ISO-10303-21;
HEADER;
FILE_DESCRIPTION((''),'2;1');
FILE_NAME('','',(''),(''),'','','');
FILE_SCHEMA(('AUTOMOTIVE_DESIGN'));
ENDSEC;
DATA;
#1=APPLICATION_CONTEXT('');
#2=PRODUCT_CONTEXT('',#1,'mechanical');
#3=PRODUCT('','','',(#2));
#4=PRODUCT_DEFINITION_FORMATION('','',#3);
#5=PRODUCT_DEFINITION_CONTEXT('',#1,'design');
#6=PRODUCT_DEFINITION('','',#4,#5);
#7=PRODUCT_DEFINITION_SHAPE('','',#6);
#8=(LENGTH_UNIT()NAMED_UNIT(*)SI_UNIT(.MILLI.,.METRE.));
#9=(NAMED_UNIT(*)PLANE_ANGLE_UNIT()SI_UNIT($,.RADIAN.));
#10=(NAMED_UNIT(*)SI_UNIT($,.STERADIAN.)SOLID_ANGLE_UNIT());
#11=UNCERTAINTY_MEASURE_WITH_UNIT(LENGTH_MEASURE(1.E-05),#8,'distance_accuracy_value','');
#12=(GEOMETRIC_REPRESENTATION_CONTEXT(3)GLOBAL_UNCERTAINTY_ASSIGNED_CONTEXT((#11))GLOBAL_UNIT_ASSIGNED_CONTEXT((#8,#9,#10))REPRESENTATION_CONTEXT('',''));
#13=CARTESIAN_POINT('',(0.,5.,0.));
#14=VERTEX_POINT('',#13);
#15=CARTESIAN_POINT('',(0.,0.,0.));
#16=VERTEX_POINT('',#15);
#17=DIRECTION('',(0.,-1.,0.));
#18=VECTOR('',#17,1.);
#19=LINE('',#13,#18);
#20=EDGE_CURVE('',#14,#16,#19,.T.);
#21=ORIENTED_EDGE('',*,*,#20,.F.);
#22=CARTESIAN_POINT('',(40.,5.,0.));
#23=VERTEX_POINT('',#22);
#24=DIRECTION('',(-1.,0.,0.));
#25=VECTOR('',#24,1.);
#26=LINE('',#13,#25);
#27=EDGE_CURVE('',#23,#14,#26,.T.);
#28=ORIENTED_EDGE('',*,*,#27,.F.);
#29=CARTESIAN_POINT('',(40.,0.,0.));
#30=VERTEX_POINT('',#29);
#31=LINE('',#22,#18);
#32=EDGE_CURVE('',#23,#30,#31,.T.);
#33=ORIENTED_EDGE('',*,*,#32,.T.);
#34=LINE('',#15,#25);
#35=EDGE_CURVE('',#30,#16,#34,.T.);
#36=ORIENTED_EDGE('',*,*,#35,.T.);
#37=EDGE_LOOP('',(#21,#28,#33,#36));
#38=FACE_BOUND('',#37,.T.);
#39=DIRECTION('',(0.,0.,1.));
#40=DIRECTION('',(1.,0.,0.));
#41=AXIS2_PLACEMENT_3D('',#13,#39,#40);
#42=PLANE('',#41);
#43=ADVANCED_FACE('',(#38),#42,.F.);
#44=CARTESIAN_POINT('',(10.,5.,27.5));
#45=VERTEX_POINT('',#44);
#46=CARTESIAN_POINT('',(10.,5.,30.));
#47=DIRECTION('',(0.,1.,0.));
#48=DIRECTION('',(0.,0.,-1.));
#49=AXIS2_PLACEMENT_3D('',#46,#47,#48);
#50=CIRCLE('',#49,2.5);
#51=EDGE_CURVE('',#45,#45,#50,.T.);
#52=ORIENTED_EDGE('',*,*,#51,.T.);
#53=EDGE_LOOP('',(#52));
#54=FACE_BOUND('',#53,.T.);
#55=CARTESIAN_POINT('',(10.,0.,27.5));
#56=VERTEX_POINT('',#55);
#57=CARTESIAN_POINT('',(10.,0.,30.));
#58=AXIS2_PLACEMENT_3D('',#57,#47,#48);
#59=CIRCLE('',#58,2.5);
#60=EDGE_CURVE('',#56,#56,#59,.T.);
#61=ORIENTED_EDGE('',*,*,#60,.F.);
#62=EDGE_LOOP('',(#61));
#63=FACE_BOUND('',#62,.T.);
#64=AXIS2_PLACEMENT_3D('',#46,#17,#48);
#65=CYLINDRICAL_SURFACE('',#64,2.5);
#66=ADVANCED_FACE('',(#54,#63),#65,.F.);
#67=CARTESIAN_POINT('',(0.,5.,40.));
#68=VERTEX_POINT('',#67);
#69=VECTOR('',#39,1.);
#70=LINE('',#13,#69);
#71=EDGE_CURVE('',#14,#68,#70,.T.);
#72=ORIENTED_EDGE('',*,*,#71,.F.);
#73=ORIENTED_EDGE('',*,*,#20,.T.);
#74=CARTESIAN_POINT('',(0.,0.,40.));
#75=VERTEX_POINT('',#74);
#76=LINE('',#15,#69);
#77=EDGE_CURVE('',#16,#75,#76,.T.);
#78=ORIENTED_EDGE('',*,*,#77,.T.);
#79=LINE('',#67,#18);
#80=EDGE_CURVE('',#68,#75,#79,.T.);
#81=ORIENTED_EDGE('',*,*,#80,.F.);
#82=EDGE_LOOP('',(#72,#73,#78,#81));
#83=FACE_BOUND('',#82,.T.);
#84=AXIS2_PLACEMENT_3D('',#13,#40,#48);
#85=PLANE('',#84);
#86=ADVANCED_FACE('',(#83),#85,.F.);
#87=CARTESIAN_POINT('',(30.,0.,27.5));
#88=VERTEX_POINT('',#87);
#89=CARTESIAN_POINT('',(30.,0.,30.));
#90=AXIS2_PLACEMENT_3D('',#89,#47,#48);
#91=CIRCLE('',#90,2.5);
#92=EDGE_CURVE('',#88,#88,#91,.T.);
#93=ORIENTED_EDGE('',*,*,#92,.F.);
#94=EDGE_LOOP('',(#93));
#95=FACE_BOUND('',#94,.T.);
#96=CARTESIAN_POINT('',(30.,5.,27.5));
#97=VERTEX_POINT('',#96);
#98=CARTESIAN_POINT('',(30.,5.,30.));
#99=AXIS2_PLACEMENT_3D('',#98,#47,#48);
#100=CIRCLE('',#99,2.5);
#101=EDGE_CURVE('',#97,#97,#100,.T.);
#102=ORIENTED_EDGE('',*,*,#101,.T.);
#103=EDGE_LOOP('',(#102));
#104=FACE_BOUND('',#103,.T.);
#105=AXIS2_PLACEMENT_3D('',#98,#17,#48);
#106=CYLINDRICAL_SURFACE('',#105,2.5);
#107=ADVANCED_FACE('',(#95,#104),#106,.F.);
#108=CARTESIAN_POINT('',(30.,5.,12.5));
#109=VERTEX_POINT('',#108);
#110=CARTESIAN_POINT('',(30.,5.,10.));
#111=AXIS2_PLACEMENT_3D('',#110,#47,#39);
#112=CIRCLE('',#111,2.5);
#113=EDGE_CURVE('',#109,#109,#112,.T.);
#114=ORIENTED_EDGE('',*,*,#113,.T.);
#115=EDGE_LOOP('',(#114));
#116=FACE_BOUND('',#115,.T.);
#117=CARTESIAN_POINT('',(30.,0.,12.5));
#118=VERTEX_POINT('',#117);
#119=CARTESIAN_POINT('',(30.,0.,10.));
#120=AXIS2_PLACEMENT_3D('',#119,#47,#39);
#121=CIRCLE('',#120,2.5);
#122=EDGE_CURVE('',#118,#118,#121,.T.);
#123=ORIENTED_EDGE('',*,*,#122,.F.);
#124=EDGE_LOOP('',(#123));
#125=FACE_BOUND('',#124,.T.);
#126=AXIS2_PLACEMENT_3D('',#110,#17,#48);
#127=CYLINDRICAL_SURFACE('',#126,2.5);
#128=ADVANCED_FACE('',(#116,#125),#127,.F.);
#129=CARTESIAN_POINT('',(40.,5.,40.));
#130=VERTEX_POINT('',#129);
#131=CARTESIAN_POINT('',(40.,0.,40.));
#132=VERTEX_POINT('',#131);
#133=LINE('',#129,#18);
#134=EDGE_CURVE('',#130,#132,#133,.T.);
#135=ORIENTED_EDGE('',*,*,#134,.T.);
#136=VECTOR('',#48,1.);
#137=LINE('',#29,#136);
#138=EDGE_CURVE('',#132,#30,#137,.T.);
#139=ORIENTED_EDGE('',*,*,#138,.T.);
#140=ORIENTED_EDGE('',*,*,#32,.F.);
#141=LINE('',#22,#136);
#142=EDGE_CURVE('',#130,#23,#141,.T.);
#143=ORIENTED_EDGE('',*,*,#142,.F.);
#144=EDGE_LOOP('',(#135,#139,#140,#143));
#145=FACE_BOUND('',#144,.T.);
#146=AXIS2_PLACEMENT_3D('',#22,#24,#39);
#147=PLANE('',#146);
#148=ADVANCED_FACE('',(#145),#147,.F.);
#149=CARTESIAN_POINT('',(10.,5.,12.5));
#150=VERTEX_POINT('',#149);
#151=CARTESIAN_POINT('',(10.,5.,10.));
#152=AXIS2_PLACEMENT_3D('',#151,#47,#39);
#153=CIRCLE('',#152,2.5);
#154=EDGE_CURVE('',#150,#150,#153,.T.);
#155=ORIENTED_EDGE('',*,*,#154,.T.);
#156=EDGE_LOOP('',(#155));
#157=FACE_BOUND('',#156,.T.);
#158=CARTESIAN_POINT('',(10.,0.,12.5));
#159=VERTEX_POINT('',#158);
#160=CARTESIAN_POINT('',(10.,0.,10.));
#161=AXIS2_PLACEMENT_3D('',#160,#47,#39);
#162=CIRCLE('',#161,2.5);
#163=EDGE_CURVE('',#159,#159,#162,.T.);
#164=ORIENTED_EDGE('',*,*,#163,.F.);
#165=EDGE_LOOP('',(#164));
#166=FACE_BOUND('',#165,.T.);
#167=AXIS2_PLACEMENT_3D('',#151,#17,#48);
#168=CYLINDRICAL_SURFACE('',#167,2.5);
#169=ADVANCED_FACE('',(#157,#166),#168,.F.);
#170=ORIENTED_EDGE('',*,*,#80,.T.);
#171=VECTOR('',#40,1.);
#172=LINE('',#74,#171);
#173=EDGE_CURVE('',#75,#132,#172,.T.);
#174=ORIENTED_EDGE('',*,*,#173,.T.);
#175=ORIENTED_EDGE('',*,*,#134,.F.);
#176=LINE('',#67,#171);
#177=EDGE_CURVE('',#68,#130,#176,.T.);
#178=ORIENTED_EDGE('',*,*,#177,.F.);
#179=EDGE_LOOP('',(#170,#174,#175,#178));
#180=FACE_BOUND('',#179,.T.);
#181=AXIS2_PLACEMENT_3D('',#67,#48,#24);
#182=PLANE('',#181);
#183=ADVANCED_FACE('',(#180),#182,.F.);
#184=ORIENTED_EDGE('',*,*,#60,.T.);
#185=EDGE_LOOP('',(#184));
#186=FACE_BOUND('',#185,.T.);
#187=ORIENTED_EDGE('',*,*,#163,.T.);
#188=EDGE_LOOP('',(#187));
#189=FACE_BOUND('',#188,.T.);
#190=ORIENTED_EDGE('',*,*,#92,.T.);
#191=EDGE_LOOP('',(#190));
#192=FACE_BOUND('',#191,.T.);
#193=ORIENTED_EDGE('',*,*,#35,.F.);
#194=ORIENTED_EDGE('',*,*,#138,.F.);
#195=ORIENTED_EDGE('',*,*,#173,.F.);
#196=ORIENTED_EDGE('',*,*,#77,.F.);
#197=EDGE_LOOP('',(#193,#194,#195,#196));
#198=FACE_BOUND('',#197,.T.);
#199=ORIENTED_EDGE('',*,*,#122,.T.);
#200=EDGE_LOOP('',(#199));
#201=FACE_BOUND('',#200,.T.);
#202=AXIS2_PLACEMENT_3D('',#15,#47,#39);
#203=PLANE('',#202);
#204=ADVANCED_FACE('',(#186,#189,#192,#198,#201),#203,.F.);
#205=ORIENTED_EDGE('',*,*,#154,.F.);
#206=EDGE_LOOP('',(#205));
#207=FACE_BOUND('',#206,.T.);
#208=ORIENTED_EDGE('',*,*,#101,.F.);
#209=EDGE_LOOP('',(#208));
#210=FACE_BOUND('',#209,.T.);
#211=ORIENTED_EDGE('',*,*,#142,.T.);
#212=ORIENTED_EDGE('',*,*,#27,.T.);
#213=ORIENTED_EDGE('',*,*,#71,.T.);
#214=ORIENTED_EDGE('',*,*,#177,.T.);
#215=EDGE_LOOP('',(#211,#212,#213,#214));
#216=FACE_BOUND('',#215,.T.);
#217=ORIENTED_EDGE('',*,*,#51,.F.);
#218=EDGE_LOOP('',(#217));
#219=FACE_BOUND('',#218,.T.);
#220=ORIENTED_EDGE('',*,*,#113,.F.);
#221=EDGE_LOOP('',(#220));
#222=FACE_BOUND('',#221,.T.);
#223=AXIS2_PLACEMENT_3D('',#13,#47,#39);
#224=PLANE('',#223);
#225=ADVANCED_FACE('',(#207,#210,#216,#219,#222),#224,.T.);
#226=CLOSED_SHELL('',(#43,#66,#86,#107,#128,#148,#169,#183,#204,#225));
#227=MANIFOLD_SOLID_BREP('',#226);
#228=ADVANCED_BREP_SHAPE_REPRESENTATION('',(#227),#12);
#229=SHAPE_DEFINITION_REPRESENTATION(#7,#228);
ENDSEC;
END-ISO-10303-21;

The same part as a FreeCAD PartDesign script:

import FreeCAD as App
import Part
import Sketcher
Q = App.Units.Quantity

doc = App.newDocument("Part")
body = doc.addObject("PartDesign::Body", "Body")

sketch1 = body.newObject("Sketcher::SketchObject", "Sketch")
sketch1.AttachmentSupport = (doc.getObject("XZ_Plane"), [""])
sketch1.MapMode = "FlatFace"
sketch1.addGeometry([
    Part.LineSegment(App.Vector(0, 0, 0), App.Vector(0, 40, 0)),
    Part.LineSegment(App.Vector(0, 40, 0), App.Vector(40, 40, 0)),
    Part.LineSegment(App.Vector(40, 40, 0), App.Vector(40, 0, 0)),
    Part.LineSegment(App.Vector(40, 0, 0), App.Vector(0, 0, 0)),
    Part.Circle(App.Vector(10, 30, 0), App.Vector(0, 0, 1), 2.5),
    Part.Circle(App.Vector(30, 30, 0), App.Vector(0, 0, 1), 2.5),
    Part.Circle(App.Vector(10, 10, 0), App.Vector(0, 0, 1), 2.5),
    Part.Circle(App.Vector(30, 10, 0), App.Vector(0, 0, 1), 2.5),
], False)
sketch1.addConstraint([
    Sketcher.Constraint("Coincident", 0, 2, 1, 1),
    Sketcher.Constraint("Coincident", 1, 2, 2, 1),
    Sketcher.Constraint("Coincident", 2, 2, 3, 1),
    Sketcher.Constraint("Coincident", 3, 2, 0, 1),
    Sketcher.Constraint("Vertical", 0),
    Sketcher.Constraint("Horizontal", 1),
    Sketcher.Constraint("Vertical", 2),
    Sketcher.Constraint("Horizontal", 3),
    Sketcher.Constraint("Coincident", 3, 2, -1, 1),
    Sketcher.Constraint("Equal", 4, 5),
    Sketcher.Constraint("Equal", 5, 6),
    Sketcher.Constraint("Equal", 6, 7),
    Sketcher.Constraint("Horizontal", 4, 3, 5, 3),
    Sketcher.Constraint("Horizontal", 6, 3, 7, 3),
    Sketcher.Constraint("Vertical", 4, 3, 6, 3),
    Sketcher.Constraint("Vertical", 5, 3, 7, 3),
    Sketcher.Constraint("Equal", 3, 0),
    Sketcher.Constraint("Diameter", 4, Q("5 mm")),
    Sketcher.Constraint("DistanceX", 1, 1, 1, 2, Q("40 mm")),
    Sketcher.Constraint("DistanceX", -1, 1, 4, 3, Q("10 mm")),
    Sketcher.Constraint("DistanceY", -1, 1, 4, 3, Q("30 mm")),
    Sketcher.Constraint("DistanceX", -1, 1, 5, 3, Q("30 mm")),
    Sketcher.Constraint("DistanceY", -1, 1, 6, 3, Q("10 mm")),
])
pad1 = body.newObject("PartDesign::Pad", "Pad")
pad1.Profile = sketch1
pad1.Length = 5
pad1.Reversed = True

doc.recompute()
